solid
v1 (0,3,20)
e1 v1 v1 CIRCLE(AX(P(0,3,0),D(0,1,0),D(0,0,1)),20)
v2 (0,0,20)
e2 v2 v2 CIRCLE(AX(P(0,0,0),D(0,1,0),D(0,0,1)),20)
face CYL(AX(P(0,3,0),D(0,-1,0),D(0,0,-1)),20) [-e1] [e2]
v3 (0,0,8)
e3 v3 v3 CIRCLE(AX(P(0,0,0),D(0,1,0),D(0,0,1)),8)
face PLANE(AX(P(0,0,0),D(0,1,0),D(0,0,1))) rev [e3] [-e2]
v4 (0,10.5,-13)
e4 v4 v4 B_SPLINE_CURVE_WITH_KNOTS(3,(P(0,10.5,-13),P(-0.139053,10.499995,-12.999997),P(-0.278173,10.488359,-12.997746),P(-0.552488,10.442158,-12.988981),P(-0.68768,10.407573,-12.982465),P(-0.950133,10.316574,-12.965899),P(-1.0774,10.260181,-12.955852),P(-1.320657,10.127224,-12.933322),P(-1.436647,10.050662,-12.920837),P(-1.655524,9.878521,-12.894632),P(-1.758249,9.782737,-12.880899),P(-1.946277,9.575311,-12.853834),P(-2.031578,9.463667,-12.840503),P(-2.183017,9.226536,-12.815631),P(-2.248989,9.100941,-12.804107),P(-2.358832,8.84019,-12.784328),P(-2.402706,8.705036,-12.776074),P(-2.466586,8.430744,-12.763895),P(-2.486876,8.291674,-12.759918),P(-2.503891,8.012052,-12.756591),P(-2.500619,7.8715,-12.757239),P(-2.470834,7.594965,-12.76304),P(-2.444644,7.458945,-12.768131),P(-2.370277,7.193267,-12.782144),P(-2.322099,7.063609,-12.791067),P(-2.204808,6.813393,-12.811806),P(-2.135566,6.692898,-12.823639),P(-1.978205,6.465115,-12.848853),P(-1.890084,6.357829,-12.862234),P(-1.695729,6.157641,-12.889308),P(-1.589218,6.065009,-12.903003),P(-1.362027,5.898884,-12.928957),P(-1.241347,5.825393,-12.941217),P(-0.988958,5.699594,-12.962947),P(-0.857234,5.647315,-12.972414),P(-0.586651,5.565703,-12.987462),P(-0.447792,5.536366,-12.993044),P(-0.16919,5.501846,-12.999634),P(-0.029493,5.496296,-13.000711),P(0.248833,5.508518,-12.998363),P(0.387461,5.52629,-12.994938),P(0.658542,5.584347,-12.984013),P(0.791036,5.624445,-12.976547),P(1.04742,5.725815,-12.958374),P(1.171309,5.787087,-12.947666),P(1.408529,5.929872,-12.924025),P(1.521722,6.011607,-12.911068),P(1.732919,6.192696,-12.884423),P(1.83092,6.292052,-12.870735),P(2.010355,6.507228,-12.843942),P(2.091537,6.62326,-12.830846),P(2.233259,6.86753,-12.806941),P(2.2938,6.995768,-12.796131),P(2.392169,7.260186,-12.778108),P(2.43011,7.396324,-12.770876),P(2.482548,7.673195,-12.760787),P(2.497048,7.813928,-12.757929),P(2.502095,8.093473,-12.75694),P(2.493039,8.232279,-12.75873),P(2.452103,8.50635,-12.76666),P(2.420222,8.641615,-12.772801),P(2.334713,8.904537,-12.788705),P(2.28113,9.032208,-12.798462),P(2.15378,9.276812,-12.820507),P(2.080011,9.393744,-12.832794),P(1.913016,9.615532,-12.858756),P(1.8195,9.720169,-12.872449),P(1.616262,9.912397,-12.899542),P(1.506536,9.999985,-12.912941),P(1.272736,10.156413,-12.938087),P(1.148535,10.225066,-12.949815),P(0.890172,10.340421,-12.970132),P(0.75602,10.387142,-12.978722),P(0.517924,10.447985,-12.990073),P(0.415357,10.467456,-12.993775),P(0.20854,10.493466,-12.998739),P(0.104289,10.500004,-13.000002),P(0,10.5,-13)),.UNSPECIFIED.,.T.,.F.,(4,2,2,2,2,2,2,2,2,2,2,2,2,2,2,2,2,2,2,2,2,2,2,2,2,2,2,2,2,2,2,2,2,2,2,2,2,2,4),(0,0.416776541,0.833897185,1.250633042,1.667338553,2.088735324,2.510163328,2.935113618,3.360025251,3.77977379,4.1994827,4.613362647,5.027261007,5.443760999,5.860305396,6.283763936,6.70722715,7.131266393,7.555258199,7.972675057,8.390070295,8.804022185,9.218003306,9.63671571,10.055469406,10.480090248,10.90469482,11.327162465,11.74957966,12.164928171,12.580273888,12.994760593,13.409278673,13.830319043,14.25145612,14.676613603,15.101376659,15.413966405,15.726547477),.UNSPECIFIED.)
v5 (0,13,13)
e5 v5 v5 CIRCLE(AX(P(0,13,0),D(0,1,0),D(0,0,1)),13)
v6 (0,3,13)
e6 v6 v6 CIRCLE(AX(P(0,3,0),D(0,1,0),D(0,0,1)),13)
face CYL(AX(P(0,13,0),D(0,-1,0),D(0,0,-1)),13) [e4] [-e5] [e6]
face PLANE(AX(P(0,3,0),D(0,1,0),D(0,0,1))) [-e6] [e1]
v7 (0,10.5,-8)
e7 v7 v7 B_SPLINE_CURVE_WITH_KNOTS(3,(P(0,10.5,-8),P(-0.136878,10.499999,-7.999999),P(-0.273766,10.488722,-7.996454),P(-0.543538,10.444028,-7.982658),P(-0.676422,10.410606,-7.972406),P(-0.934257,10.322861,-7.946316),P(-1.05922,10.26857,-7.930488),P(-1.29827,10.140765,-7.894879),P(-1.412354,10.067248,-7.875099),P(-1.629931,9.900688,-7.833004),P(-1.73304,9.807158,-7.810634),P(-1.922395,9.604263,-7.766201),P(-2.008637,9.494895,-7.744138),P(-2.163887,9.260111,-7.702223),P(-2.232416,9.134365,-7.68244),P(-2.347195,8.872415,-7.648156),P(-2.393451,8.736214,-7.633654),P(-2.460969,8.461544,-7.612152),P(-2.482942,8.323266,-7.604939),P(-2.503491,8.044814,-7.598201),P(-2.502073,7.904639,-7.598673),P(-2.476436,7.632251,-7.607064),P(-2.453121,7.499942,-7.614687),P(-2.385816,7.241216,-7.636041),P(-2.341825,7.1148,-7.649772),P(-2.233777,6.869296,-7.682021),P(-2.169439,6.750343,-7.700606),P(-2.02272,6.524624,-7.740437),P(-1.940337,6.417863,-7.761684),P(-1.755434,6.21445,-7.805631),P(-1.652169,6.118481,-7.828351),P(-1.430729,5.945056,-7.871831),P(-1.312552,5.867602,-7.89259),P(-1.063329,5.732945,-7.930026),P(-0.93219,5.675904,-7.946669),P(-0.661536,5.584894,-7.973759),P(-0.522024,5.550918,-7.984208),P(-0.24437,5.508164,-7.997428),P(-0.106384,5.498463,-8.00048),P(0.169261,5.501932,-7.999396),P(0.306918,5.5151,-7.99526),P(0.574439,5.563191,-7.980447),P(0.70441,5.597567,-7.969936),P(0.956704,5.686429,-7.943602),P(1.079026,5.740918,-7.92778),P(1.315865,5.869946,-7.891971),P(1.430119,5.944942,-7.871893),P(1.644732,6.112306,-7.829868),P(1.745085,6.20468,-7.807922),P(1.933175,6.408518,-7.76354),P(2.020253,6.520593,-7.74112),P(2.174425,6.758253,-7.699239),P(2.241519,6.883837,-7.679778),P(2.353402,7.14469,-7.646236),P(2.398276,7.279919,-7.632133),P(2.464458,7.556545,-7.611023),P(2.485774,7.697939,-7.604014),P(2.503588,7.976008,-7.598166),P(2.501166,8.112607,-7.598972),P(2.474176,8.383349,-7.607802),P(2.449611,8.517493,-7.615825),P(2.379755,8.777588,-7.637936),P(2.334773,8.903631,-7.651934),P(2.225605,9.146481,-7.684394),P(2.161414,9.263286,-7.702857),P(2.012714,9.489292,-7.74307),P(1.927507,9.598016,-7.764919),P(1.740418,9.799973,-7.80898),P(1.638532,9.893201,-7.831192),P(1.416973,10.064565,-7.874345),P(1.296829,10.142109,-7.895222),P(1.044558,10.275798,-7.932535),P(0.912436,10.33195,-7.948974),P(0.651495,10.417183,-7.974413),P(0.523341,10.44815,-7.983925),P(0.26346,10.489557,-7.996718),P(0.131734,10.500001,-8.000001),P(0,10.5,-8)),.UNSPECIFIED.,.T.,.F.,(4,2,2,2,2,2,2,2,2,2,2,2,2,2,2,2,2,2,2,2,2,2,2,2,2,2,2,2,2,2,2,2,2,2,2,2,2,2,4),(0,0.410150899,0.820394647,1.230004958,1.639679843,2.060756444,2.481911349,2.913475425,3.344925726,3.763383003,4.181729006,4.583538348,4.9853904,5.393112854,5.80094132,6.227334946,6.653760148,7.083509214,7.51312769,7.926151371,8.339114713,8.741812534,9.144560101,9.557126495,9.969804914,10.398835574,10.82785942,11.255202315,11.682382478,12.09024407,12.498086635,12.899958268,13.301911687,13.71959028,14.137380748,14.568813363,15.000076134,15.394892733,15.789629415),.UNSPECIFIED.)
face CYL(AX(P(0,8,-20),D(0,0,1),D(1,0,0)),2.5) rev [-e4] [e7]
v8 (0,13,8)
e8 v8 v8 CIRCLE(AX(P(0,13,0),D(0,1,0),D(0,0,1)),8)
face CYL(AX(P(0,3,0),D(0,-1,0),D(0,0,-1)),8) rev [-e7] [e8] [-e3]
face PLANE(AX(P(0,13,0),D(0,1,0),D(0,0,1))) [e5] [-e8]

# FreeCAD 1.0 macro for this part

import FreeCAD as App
import Part
import Sketcher
from FreeCAD import Vector
Q = App.Units.Quantity

doc = App.newDocument("Part")
body = doc.addObject("PartDesign::Body", "Body")

# Sketch on XZ plane
sketch1 = body.newObject("Sketcher::SketchObject", "Sketch")
sketch1.AttachmentSupport = (doc.getObject("XZ_Plane"), [""])
sketch1.MapMode = "FlatFace"
sketch1.addGeometry([
    Part.Circle(Vector(0, 0, 0), Vector(0, 0, 1), 20),
    Part.Circle(Vector(0, 0, 0), Vector(0, 0, 1), 8),
], False)
sketch1.addConstraint([
    Sketcher.Constraint("Coincident", 0, 3, -1, 1),
    Sketcher.Constraint("Coincident", 1, 3, -1, 1),
    Sketcher.Constraint("Diameter", 0, Q("40 mm")),
    Sketcher.Constraint("Diameter", 1, Q("16 mm")),
])
pad1 = body.newObject("PartDesign::Pad", "Pad")
pad1.Profile = sketch1
pad1.Length = 3
pad1.Reversed = True

# Sketch on XZ plane
sketch2 = body.newObject("Sketcher::SketchObject", "Sketch001")
sketch2.AttachmentSupport = (doc.getObject("XZ_Plane"), [""])
sketch2.MapMode = "FlatFace"
sketch2.AttachmentOffset = App.Placement(Vector(0, 0, -3), App.Rotation())
sketch2.addGeometry([
    Part.Circle(Vector(0, 0, 0), Vector(0, 0, 1), 13),
    Part.Circle(Vector(0, 0, 0), Vector(0, 0, 1), 8),
], False)
sketch2.addConstraint([
    Sketcher.Constraint("Coincident", 0, 3, -1, 1),
    Sketcher.Constraint("Coincident", 1, 3, -1, 1),
    Sketcher.Constraint("Diameter", 0, Q("26 mm")),
    Sketcher.Constraint("Diameter", 1, Q("16 mm")),
])
pad2 = body.newObject("PartDesign::Pad", "Pad001")
pad2.Profile = sketch2
pad2.Length = 10
pad2.Reversed = True

# Sketch on XY plane
sketch3 = body.newObject("Sketcher::SketchObject", "Sketch002")
sketch3.AttachmentSupport = (doc.getObject("XY_Plane"), [""])
sketch3.MapMode = "FlatFace"
sketch3.addGeometry(Part.Circle(Vector(0, 8, 0), Vector(0, 0, 1), 2.5), False)
sketch3.addConstraint([
    Sketcher.Constraint("PointOnObject", 0, 3, -2),
    Sketcher.Constraint("Diameter", 0, Q("5 mm")),
    Sketcher.Constraint("DistanceY", -1, 1, 0, 3, Q("8 mm")),
])
pocket1 = body.newObject("PartDesign::Pocket", "Pocket")
pocket1.Profile = sketch3
pocket1.Type = "ThroughAll"

doc.recompute()
